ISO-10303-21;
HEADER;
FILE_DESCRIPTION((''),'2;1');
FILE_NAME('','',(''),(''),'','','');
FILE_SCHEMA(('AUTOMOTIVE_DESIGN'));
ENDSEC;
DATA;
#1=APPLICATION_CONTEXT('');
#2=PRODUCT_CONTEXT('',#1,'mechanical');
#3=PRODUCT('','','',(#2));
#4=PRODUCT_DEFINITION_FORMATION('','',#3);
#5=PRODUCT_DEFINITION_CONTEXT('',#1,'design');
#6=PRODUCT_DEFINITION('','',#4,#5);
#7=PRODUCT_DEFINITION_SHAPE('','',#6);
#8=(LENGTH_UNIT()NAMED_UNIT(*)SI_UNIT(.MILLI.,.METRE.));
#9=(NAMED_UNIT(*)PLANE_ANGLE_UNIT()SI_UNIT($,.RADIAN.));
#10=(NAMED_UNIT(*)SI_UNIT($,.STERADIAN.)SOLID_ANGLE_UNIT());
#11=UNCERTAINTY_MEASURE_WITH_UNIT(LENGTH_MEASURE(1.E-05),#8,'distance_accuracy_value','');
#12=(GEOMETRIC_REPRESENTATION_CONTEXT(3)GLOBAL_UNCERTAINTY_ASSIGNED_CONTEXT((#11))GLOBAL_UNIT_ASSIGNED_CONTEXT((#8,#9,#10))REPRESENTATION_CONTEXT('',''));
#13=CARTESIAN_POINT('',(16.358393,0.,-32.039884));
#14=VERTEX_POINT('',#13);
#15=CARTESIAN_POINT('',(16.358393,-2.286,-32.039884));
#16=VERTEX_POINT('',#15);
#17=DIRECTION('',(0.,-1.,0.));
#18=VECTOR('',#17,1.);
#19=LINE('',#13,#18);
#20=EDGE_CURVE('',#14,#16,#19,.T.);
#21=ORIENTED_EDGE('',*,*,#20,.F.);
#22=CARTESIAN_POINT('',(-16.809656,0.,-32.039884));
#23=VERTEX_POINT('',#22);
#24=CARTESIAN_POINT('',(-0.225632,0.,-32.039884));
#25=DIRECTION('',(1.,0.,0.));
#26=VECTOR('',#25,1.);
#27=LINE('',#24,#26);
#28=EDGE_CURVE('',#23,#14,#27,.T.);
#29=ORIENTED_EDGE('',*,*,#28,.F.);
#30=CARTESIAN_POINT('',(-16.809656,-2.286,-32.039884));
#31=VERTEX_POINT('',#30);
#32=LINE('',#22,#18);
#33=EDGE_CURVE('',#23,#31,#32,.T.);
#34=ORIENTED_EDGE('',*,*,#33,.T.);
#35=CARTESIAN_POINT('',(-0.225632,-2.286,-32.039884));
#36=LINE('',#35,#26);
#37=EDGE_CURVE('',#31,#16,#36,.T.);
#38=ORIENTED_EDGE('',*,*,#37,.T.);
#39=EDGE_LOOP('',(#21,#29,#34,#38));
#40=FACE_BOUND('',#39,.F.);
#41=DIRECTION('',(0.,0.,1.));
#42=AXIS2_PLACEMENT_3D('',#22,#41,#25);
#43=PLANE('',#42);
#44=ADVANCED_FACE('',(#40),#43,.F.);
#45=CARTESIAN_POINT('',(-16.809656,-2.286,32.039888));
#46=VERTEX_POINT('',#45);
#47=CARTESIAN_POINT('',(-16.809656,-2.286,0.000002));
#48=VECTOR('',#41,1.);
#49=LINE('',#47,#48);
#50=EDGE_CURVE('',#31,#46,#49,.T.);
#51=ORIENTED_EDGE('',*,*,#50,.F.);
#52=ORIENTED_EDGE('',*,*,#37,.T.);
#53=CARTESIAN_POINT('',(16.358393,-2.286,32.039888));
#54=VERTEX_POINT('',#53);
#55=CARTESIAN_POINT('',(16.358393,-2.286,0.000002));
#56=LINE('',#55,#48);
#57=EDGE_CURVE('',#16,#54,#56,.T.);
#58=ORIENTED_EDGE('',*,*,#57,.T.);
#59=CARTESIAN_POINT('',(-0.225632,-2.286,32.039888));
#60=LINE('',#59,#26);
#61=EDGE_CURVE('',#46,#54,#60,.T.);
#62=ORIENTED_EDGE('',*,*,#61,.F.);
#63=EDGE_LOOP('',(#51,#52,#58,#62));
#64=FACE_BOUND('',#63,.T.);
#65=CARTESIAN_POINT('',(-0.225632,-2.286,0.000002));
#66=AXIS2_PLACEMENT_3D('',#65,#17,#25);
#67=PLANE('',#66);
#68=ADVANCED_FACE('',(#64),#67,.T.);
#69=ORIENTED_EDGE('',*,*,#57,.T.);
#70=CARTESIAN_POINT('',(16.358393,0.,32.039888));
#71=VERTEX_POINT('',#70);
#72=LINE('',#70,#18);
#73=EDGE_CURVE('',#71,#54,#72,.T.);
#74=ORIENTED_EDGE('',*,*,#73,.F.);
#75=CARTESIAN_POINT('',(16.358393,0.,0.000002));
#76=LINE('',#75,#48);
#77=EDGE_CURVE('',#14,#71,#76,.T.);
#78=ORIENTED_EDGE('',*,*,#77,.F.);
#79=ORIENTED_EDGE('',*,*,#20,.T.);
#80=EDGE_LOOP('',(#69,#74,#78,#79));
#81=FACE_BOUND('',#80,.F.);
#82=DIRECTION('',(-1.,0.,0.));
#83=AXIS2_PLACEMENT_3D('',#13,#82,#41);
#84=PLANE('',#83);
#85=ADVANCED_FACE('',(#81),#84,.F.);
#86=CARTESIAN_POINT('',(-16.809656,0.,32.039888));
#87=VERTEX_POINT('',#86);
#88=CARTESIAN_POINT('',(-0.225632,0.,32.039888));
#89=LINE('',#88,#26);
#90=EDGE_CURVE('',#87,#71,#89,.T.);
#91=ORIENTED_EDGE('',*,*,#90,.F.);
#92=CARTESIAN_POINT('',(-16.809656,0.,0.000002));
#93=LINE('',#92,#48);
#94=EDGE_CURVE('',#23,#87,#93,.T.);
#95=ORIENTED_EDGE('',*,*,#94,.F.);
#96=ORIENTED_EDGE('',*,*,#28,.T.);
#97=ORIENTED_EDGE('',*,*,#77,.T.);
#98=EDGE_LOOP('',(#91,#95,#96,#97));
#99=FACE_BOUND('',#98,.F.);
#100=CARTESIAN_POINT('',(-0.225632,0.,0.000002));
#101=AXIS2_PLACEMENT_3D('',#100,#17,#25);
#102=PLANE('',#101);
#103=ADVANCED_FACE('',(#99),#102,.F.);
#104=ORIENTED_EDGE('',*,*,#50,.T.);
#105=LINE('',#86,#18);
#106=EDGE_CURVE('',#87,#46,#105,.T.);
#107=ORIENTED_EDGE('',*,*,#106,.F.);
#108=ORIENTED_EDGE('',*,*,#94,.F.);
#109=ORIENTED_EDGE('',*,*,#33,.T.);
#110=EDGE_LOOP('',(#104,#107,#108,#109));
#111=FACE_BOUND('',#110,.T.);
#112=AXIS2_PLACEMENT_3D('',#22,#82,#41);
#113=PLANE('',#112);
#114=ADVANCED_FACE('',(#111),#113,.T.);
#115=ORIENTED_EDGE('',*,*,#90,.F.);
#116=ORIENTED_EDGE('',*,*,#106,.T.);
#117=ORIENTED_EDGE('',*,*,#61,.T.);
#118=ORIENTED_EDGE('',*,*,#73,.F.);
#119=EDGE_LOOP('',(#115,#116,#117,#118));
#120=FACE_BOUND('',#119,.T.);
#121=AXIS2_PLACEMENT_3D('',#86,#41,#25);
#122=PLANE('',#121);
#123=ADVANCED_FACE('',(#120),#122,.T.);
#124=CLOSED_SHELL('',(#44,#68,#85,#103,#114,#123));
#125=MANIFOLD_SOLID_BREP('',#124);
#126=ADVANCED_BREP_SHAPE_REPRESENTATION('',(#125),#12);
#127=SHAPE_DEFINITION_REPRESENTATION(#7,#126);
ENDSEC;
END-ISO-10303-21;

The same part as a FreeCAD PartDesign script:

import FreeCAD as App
import Part
import Sketcher

V = App.Vector
Q = App.Units.Quantity

doc = App.newDocument("Part")
body = doc.addObject("PartDesign::Body", "Body")

# Sketch on XZ plane
sketch1 = body.newObject("Sketcher::SketchObject", "Sketch")
sketch1.AttachmentSupport = (doc.getObject("XZ_Plane"), [""])
sketch1.MapMode = "FlatFace"
sketch1.addGeometry([
    Part.LineSegment(V(-17, 32, 0), V(-17, -32, 0)),
    Part.LineSegment(V(-17, -32, 0), V(16, -32, 0)),
    Part.LineSegment(V(16, -32, 0), V(16, 32, 0)),
    Part.LineSegment(V(16, 32, 0), V(-17, 32, 0)),
], False)
sketch1.addConstraint([
    Sketcher.Constraint("Coincident", 0, 2, 1, 1),
    Sketcher.Constraint("Coincident", 1, 2, 2, 1),
    Sketcher.Constraint("Coincident", 2, 2, 3, 1),
    Sketcher.Constraint("Coincident", 3, 2, 0, 1),
    Sketcher.Constraint("Vertical", 0),
    Sketcher.Constraint("Horizontal", 1),
    Sketcher.Constraint("Vertical", 2),
    Sketcher.Constraint("Horizontal", 3),
    Sketcher.Constraint("DistanceX", 1, 1, 1, 2, Q("33.168049 mm")),
    Sketcher.Constraint("DistanceY", 0, 2, 0, 1, Q("64.079772 mm")),
    Sketcher.Constraint("DistanceX", 0, 2, -1, 1, Q("16.809656 mm")),
    Sketcher.Constraint("DistanceY", 0, 2, -1, 1, Q("32.039884 mm")),
])
pad1 = body.newObject("PartDesign::Pad", "Pad")
pad1.Profile = sketch1
pad1.Length = Q("0.09 in")

doc.recompute()
